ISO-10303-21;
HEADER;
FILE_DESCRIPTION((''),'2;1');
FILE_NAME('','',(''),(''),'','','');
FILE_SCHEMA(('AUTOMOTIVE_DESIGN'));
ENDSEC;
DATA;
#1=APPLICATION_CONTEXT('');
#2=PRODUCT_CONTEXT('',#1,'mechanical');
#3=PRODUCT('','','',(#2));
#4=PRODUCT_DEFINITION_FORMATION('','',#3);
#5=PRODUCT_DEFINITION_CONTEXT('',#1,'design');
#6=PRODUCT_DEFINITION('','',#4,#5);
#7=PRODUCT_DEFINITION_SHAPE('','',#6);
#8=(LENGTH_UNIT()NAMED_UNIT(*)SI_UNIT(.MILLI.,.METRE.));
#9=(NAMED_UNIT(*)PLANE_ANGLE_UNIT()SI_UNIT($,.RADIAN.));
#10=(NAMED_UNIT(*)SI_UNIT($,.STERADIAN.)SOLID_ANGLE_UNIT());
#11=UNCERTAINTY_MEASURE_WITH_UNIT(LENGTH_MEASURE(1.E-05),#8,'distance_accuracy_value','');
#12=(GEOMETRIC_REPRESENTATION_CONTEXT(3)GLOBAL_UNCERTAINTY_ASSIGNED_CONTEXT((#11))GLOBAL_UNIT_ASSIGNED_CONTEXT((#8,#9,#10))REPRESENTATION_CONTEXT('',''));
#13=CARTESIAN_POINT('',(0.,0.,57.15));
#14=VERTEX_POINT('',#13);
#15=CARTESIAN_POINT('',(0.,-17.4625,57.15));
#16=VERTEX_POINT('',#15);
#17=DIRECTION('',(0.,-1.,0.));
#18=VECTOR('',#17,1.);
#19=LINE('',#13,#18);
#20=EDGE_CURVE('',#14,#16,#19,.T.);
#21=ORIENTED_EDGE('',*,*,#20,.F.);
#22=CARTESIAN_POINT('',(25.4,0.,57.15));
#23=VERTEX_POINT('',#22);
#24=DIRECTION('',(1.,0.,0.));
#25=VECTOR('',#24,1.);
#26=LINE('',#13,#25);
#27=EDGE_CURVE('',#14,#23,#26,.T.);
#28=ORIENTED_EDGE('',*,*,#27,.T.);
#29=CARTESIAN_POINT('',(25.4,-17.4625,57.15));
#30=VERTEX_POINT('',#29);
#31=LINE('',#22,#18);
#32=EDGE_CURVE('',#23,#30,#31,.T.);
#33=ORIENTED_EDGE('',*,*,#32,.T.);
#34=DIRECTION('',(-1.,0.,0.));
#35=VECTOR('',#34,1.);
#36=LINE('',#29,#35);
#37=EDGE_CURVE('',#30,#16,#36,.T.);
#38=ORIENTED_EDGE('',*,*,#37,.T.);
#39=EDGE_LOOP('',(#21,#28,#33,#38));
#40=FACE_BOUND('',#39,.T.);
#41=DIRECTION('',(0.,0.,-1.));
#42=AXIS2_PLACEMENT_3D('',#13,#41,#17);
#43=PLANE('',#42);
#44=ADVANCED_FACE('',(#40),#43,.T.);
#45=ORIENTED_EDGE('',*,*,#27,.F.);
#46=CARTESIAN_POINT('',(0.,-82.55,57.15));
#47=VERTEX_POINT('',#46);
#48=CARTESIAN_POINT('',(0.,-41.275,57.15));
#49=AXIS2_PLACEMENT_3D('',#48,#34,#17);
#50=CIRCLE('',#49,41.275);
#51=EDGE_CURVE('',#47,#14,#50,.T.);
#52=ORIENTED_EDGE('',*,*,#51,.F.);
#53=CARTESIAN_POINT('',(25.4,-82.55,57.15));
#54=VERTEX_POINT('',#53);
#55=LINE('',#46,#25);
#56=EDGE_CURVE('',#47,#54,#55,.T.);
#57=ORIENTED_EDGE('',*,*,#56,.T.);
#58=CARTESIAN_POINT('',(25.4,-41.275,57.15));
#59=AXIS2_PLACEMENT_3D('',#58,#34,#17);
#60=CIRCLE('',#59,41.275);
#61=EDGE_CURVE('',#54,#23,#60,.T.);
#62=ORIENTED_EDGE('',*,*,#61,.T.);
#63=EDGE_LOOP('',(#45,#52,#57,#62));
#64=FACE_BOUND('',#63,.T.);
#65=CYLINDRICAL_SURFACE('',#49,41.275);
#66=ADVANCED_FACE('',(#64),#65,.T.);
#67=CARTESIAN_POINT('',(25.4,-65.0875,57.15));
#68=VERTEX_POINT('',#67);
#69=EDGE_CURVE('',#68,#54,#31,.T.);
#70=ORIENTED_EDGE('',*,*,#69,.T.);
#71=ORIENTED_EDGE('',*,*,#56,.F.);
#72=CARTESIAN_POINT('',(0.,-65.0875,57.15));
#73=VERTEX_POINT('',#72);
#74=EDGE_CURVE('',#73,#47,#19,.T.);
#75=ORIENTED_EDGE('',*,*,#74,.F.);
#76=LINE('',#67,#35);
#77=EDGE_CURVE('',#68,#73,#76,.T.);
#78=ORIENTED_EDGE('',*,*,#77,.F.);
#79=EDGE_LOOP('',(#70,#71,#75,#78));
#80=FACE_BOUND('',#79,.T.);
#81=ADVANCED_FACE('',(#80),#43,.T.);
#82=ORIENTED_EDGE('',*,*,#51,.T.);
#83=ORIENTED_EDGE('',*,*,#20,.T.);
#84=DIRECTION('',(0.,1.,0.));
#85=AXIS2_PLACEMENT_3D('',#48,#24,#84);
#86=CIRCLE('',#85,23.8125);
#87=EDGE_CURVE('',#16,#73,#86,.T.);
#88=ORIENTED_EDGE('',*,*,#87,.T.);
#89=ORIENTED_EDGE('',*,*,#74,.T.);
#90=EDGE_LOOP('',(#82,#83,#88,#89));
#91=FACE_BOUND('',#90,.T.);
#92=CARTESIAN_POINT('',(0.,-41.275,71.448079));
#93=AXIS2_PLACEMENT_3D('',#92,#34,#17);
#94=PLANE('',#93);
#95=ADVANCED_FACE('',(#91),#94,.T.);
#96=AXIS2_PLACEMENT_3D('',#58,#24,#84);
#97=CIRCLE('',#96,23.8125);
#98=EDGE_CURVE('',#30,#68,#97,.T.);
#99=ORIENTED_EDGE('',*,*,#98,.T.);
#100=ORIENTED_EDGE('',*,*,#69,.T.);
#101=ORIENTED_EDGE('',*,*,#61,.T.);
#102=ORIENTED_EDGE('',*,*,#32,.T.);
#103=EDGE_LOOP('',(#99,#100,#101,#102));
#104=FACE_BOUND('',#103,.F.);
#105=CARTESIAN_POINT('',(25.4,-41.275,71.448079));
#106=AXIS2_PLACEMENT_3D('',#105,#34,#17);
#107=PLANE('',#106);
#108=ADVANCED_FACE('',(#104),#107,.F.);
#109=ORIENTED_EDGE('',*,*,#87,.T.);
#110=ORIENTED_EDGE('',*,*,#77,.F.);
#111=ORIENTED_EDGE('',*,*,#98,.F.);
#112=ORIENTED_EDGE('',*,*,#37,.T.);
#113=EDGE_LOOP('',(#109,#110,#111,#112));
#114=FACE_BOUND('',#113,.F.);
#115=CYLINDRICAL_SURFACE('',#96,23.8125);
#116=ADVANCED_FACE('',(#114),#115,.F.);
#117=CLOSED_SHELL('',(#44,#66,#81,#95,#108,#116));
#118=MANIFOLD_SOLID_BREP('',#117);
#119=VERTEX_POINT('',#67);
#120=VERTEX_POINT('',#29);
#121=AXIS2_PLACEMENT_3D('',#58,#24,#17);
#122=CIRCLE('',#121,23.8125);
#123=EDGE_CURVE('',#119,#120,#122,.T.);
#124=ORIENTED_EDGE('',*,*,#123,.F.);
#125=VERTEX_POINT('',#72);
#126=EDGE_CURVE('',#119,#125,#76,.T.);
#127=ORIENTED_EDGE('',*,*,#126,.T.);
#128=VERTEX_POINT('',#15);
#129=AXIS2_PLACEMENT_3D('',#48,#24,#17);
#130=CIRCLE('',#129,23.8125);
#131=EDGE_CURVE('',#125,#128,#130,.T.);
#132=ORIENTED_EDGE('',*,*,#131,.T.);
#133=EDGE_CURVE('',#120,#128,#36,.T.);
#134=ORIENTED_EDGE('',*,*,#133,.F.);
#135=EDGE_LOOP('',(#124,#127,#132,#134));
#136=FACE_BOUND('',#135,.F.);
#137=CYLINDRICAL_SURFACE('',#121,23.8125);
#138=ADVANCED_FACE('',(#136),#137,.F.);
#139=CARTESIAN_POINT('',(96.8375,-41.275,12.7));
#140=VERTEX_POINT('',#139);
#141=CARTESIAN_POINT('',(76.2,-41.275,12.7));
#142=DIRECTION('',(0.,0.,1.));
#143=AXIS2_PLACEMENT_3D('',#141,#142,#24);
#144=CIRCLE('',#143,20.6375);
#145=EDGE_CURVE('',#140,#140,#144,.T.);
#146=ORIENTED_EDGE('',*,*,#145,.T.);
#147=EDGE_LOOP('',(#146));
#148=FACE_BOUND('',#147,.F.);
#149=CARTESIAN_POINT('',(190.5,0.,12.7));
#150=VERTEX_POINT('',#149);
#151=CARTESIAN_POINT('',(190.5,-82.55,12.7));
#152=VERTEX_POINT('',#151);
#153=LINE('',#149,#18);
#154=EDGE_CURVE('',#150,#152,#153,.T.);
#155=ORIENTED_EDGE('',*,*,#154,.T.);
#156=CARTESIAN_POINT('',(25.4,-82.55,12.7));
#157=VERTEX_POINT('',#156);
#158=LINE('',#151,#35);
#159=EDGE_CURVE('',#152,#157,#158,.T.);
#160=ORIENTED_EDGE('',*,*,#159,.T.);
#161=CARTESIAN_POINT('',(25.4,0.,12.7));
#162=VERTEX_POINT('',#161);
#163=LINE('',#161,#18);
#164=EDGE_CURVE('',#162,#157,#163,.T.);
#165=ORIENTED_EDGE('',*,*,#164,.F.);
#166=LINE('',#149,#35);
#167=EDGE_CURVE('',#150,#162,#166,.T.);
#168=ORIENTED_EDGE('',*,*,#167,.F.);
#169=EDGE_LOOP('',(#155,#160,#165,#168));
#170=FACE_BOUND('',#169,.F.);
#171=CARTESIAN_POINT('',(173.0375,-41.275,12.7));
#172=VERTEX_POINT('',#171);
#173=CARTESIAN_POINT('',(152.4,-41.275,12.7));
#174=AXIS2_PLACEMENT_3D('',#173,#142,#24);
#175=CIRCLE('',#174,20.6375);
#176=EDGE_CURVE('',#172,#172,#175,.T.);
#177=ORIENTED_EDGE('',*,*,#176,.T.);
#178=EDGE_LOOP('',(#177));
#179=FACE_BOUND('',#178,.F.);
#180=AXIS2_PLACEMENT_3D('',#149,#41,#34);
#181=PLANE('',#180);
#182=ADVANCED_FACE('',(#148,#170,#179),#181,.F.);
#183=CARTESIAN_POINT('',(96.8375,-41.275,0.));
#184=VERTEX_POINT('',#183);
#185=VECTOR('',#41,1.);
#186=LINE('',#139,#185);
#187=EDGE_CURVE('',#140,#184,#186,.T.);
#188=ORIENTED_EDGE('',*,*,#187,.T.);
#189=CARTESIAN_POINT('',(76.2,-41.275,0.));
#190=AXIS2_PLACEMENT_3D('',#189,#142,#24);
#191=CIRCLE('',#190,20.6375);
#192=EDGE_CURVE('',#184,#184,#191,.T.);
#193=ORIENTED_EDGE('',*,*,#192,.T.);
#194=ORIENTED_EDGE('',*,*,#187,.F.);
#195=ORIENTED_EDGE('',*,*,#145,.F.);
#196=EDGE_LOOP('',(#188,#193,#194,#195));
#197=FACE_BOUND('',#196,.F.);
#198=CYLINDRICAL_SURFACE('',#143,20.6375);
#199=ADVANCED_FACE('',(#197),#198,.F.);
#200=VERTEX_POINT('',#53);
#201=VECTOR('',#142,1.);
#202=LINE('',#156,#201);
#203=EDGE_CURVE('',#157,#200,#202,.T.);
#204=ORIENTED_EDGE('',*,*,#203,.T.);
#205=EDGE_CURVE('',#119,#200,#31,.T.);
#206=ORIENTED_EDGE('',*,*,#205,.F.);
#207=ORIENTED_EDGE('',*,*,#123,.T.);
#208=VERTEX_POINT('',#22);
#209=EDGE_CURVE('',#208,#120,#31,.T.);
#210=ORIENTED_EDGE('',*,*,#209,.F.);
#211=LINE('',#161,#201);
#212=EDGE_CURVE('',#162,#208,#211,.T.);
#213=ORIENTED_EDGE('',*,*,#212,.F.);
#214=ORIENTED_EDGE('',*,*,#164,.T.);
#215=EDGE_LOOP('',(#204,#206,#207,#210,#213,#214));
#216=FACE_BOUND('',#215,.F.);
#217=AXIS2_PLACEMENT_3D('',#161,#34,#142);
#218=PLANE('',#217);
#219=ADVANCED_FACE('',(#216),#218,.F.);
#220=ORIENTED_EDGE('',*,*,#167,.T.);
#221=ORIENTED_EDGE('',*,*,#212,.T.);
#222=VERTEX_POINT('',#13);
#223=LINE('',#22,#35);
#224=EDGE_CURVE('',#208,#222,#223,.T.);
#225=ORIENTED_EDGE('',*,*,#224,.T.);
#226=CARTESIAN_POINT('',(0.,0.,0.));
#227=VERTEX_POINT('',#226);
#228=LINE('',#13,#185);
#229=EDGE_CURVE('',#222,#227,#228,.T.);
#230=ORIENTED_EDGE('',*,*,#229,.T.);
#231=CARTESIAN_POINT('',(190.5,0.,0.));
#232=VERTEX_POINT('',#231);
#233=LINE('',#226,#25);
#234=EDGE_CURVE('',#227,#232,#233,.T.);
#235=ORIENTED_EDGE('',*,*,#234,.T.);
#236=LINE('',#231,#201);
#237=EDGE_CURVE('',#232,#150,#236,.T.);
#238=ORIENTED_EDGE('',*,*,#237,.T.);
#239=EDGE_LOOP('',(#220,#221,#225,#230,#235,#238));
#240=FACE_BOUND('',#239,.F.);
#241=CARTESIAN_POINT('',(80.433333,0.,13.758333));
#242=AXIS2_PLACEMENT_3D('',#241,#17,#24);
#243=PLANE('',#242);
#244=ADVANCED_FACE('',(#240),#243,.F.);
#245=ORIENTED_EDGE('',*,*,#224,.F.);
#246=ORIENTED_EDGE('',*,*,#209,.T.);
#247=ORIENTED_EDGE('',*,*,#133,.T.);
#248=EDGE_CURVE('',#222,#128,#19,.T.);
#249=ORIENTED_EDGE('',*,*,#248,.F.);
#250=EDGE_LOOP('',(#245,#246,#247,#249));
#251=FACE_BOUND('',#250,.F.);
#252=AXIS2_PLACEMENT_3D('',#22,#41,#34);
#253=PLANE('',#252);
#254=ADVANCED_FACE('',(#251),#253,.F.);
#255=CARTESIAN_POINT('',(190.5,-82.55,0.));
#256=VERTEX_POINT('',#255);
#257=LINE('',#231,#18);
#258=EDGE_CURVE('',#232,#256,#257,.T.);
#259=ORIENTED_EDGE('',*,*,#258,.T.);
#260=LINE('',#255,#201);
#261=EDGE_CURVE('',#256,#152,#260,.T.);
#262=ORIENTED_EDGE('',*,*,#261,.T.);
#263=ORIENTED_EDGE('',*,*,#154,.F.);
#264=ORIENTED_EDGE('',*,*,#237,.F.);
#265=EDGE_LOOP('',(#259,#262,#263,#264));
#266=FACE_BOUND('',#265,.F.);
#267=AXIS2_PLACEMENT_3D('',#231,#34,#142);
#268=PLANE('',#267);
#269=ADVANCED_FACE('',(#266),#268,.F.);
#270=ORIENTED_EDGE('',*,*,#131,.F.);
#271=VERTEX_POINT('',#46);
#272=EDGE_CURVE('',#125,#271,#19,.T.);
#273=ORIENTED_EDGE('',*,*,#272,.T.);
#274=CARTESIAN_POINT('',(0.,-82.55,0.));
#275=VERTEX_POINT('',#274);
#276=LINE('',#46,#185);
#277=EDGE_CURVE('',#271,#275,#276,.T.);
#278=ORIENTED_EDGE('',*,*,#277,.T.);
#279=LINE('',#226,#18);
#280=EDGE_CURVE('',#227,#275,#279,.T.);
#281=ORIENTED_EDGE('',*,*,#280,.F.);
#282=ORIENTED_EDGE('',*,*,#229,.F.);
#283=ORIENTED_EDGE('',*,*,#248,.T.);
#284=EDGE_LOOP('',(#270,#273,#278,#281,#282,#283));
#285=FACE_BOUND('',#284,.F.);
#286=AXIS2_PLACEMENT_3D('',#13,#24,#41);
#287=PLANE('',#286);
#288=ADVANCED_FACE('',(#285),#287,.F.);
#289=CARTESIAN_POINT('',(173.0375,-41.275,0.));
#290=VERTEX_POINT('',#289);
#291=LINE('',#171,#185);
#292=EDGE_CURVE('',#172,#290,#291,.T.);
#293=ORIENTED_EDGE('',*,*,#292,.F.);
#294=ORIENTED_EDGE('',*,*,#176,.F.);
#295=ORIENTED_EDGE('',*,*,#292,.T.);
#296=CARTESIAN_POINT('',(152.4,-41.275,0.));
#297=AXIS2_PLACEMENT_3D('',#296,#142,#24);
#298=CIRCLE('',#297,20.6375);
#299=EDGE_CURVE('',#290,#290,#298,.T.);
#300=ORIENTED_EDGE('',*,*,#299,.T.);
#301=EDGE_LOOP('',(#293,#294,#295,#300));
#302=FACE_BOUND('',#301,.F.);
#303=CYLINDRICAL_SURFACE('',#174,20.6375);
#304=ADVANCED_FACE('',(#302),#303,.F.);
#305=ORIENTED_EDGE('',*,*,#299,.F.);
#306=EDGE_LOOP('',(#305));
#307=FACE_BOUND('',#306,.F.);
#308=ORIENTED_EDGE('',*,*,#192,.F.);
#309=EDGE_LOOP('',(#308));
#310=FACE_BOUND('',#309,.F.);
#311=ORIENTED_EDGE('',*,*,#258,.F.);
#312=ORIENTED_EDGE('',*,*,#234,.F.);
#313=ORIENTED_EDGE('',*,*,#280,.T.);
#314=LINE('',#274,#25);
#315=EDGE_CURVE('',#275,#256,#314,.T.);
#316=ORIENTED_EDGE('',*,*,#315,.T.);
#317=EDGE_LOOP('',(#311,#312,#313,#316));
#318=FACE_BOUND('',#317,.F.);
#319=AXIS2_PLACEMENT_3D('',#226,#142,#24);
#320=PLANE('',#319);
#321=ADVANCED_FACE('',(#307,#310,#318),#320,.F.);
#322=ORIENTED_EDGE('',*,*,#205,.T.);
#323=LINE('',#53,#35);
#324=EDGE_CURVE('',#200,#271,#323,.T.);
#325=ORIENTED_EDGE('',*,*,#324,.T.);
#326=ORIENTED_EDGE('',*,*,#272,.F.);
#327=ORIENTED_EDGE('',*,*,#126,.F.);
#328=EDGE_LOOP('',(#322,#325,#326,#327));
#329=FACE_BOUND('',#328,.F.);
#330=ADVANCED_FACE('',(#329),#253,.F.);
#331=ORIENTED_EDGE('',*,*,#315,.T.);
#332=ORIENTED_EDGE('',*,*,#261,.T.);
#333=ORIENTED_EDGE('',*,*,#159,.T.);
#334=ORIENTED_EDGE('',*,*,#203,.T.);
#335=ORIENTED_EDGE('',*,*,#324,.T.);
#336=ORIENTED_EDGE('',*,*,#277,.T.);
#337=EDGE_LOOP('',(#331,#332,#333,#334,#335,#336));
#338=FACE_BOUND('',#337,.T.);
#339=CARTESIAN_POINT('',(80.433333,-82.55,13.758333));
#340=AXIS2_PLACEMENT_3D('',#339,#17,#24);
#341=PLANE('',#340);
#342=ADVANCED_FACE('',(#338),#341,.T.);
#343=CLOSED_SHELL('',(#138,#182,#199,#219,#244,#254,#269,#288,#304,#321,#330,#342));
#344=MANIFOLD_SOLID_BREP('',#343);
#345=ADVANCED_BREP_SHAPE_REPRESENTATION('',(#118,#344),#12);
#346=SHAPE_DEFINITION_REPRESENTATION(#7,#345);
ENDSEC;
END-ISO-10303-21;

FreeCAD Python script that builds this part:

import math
import FreeCAD as App
import Part
import Sketcher

V = App.Vector
Q = App.Units.Quantity

doc = App.newDocument("Part")
body = doc.addObject("PartDesign::Body", "Body")

# Sketch on XZ plane
sketch1 = body.newObject("Sketcher::SketchObject", "Sketch")
sketch1.AttachmentSupport = (doc.getObject("XZ_Plane"), [""])
sketch1.MapMode = "FlatFace"
sketch1.addGeometry(Part.LineSegment(V(0, 57, 0), V(0, 0, 0)), False)
sketch1.addGeometry(Part.LineSegment(V(0, 0, 0), V(190, 0, 0)), False)
sketch1.addGeometry(Part.LineSegment(V(190, 0, 0), V(190, 13, 0)), False)
sketch1.addGeometry(Part.LineSegment(V(190, 13, 0), V(25, 13, 0)), False)
sketch1.addGeometry(Part.LineSegment(V(25, 13, 0), V(25, 57, 0)), False)
sketch1.addGeometry(Part.LineSegment(V(25, 57, 0), V(0, 57, 0)), False)
sketch1.addConstraint(Sketcher.Constraint("Coincident", 0, 2, 1, 1))
sketch1.addConstraint(Sketcher.Constraint("Coincident", 1, 2, 2, 1))
sketch1.addConstraint(Sketcher.Constraint("Coincident", 2, 2, 3, 1))
sketch1.addConstraint(Sketcher.Constraint("Coincident", 3, 2, 4, 1))
sketch1.addConstraint(Sketcher.Constraint("Coincident", 4, 2, 5, 1))
sketch1.addConstraint(Sketcher.Constraint("Coincident", 5, 2, 0, 1))
sketch1.addConstraint(Sketcher.Constraint("Vertical", 0))
sketch1.addConstraint(Sketcher.Constraint("Horizontal", 1))
sketch1.addConstraint(Sketcher.Constraint("Vertical", 2))
sketch1.addConstraint(Sketcher.Constraint("Horizontal", 3))
sketch1.addConstraint(Sketcher.Constraint("Vertical", 4))
sketch1.addConstraint(Sketcher.Constraint("Horizontal", 5))
sketch1.addConstraint(Sketcher.Constraint("Coincident", 0, 2, -1, 1))
sketch1.addConstraint(Sketcher.Constraint("DistanceX", 5, 2, 5, 1, Q("1 in")))
sketch1.addConstraint(Sketcher.Constraint("DistanceX", 1, 1, 1, 2, Q("7.5 in")))
sketch1.addConstraint(Sketcher.Constraint("DistanceY", 2, 1, 2, 2, Q("0.5 in")))
sketch1.addConstraint(Sketcher.Constraint("DistanceY", 0, 2, 0, 1, Q("2.25 in")))
pad1 = body.newObject("PartDesign::Pad", "Pad")
pad1.Profile = sketch1
pad1.Length = Q("3.25 in")

# Sketch on XY plane
sketch2 = body.newObject("Sketcher::SketchObject", "Sketch001")
sketch2.AttachmentSupport = (doc.getObject("XY_Plane"), [""])
sketch2.MapMode = "FlatFace"
sketch2.AttachmentOffset = App.Placement(V(0, 0, 0.5 * 25.4), App.Rotation())
sketch2.addGeometry(Part.Circle(V(76, -41, 0), V(0, 0, 1), 21), False)
sketch2.addGeometry(Part.Circle(V(152, -41, 0), V(0, 0, 1), 21), False)
sketch2.addConstraint(Sketcher.Constraint("Equal", 0, 1))
sketch2.addConstraint(Sketcher.Constraint("Horizontal", 0, 3, 1, 3))
sketch2.addConstraint(Sketcher.Constraint("Diameter", 0, Q("1.625 in")))
sketch2.addConstraint(Sketcher.Constraint("DistanceX", -1, 1, 0, 3, Q("3 in")))
sketch2.addConstraint(Sketcher.Constraint("DistanceX", -1, 1, 1, 3, Q("6 in")))
sketch2.addConstraint(Sketcher.Constraint("DistanceY", 0, 3, -1, 1, Q("1.625 in")))
pocket1 = body.newObject("PartDesign::Pocket", "Pocket")
pocket1.Profile = sketch2
pocket1.Type = "ThroughAll"

# Sketch on YZ plane
sketch3 = body.newObject("Sketcher::SketchObject", "Sketch002")
sketch3.AttachmentSupport = (doc.getObject("YZ_Plane"), [""])
sketch3.MapMode = "FlatFace"
sketch3.AttachmentOffset = App.Placement(V(0, 0, 1 * 25.4), App.Rotation())
sketch3.addGeometry(Part.ArcOfCircle(Part.Circle(V(-41, 57, 0), V(0, 0, 1), 24), math.radians(180), math.radians(360)), False)
sketch3.addGeometry(Part.LineSegment(V(-17, 57, 0), V(-65, 57, 0)), False)
sketch3.addConstraint(Sketcher.Constraint("Coincident", 0, 1, 1, 2))
sketch3.addConstraint(Sketcher.Constraint("Coincident", 1, 1, 0, 2))
sketch3.addConstraint(Sketcher.Constraint("Horizontal", 1))
sketch3.addConstraint(Sketcher.Constraint("Radius", 0, Q("0.9375 in")))
sketch3.addConstraint(Sketcher.Constraint("DistanceY", -1, 1, 0, 3, Q("2.25 in")))
sketch3.addConstraint(Sketcher.Constraint("DistanceY", -1, 1, 0, 1, Q("2.25 in")))
sketch3.addConstraint(Sketcher.Constraint("DistanceX", 0, 3, -1, 1, Q("1.625 in")))
pocket2 = body.newObject("PartDesign::Pocket", "Pocket001")
pocket2.Profile = sketch3
pocket2.Length = Q("1 in")
body2 = doc.addObject("PartDesign::Body", "Body001")

# Sketch on YZ plane
sketch4 = body2.newObject("Sketcher::SketchObject", "Sketch003")
sketch4.AttachmentSupport = (doc.getObject("YZ_Plane001"), [""])
sketch4.MapMode = "FlatFace"
sketch4.addGeometry(Part.LineSegment(V(0, 57, 0), V(-83, 57, 0)), False)
sketch4.addGeometry(Part.ArcOfCircle(Part.Circle(V(-41, 57, 0), V(0, 0, 1), 41), math.radians(0), math.radians(180)), False)
sketch4.addConstraint(Sketcher.Constraint("Coincident", 0, 1, 1, 1))
sketch4.addConstraint(Sketcher.Constraint("Coincident", 1, 2, 0, 2))
sketch4.addConstraint(Sketcher.Constraint("Horizontal", 0))
sketch4.addConstraint(Sketcher.Constraint("PointOnObject", 0, 1, -2))
sketch4.addConstraint(Sketcher.Constraint("Horizontal", 1, 3, 0, 1))
sketch4.addConstraint(Sketcher.Constraint("Radius", 1, Q("1.625 in")))
sketch4.addConstraint(Sketcher.Constraint("DistanceY", -1, 1, 1, 3, Q("2.25 in")))
pad2 = body2.newObject("PartDesign::Pad", "Pad001")
pad2.Profile = sketch4
pad2.Length = Q("1 in")

# Sketch on YZ plane
sketch5 = body2.newObject("Sketcher::SketchObject", "Sketch004")
sketch5.AttachmentSupport = (doc.getObject("YZ_Plane001"), [""])
sketch5.MapMode = "FlatFace"
sketch5.AttachmentOffset = App.Placement(V(0, 0, 1 * 25.4), App.Rotation())
sketch5.addGeometry(Part.LineSegment(V(-65, 57, 0), V(-17, 57, 0)), False)
sketch5.addGeometry(Part.ArcOfCircle(Part.Circle(V(-41, 57, 0), V(0, 0, 1), 24), math.radians(0), math.radians(180)), False)
sketch5.addConstraint(Sketcher.Constraint("Coincident", 0, 1, 1, 2))
sketch5.addConstraint(Sketcher.Constraint("Coincident", 1, 1, 0, 2))
sketch5.addConstraint(Sketcher.Constraint("Horizontal", 0))
sketch5.addConstraint(Sketcher.Constraint("Horizontal", 1, 3, 0, 1))
sketch5.addConstraint(Sketcher.Constraint("Radius", 1, Q("0.9375 in")))
sketch5.addConstraint(Sketcher.Constraint("DistanceY", -1, 1, 1, 3, Q("2.25 in")))
sketch5.addConstraint(Sketcher.Constraint("DistanceX", 1, 3, -1, 1, Q("1.625 in")))
pocket3 = body2.newObject("PartDesign::Pocket", "Pocket002")
pocket3.Profile = sketch5
pocket3.Length = Q("1 in")

doc.recompute()
